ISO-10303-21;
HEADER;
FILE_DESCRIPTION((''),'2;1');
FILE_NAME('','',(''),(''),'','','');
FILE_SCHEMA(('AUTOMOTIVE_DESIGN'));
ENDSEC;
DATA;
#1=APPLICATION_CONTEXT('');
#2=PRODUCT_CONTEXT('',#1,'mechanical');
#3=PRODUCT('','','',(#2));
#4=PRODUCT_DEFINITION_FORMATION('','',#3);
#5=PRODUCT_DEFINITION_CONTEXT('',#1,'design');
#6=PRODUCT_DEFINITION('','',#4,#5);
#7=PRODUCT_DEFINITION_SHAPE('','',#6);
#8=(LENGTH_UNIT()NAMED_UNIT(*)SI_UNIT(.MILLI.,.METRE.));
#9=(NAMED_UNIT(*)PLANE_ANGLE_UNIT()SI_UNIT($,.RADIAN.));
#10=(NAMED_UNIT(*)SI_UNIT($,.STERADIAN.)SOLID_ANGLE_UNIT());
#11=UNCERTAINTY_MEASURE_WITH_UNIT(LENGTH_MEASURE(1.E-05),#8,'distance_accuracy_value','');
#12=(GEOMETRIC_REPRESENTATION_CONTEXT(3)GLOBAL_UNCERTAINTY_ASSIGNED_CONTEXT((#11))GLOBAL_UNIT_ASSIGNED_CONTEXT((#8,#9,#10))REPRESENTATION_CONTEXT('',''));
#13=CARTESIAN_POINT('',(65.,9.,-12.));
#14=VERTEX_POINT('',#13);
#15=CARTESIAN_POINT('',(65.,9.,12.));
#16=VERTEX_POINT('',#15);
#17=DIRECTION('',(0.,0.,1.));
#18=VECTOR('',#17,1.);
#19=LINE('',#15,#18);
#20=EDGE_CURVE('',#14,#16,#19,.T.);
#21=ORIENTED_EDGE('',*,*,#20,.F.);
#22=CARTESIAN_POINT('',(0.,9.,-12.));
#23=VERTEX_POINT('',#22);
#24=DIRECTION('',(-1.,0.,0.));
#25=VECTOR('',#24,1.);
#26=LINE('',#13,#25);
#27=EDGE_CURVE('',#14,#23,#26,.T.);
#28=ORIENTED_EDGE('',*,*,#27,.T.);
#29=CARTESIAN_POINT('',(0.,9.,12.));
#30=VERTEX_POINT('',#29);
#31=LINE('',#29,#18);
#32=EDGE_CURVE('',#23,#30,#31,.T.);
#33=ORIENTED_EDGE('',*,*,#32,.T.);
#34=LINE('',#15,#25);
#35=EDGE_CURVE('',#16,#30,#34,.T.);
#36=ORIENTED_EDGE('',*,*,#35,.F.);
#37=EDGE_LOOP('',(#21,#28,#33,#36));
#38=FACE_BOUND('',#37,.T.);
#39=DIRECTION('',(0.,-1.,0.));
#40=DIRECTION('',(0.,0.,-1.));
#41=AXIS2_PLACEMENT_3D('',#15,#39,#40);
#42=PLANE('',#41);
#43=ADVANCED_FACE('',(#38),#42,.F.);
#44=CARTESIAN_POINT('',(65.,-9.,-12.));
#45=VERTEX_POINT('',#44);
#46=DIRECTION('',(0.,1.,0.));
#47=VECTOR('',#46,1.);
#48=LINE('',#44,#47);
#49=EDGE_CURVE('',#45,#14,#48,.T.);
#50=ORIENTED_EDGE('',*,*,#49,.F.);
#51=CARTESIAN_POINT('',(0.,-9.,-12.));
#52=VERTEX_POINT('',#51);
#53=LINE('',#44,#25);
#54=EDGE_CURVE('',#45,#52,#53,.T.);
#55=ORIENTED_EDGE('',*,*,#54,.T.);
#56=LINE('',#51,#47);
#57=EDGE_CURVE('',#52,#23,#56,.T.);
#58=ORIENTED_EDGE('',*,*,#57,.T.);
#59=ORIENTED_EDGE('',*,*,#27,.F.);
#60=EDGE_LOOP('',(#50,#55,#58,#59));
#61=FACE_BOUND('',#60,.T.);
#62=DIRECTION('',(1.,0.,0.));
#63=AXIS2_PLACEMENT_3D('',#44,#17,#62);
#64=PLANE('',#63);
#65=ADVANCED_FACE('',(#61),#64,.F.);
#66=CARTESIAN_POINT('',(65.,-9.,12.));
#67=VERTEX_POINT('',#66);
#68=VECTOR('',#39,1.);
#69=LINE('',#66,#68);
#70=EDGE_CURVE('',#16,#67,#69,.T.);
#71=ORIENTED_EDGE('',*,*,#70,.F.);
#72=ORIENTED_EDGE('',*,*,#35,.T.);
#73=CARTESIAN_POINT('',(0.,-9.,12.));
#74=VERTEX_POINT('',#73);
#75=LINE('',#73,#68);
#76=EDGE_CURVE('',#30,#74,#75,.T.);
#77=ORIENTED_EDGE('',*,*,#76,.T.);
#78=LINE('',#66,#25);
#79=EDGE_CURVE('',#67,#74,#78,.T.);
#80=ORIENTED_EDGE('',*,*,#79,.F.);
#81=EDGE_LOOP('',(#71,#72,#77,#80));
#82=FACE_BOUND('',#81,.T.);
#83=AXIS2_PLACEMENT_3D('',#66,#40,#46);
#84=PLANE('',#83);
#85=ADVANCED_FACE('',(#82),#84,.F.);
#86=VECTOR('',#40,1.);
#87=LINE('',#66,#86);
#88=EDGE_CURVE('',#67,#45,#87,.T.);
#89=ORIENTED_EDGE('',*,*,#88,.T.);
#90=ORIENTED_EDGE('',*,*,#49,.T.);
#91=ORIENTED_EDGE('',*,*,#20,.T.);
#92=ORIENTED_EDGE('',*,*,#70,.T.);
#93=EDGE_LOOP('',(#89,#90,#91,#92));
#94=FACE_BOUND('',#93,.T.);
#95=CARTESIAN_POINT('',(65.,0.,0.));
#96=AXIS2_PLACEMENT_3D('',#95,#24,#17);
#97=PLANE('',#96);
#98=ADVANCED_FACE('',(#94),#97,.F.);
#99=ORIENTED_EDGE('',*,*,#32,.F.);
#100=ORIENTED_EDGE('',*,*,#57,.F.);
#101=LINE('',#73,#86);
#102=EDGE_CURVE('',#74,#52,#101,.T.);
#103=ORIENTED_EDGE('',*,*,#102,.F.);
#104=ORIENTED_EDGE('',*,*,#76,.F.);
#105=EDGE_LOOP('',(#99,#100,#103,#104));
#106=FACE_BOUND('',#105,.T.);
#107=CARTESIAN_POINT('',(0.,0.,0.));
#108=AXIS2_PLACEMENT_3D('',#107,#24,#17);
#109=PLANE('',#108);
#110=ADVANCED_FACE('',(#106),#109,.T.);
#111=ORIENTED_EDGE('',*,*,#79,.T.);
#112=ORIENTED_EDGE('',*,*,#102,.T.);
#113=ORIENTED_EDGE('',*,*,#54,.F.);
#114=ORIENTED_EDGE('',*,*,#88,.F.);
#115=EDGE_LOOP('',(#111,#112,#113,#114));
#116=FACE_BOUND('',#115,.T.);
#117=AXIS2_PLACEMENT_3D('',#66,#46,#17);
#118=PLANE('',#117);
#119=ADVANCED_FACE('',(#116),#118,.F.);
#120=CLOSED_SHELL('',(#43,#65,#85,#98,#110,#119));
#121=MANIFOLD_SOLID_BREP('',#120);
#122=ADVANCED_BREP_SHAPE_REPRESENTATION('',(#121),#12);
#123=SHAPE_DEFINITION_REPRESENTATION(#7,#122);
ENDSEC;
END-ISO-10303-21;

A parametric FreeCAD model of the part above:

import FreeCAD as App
import Part
import Sketcher

doc = App.newDocument("Part")
body = doc.addObject("PartDesign::Body", "Body")

# Sketch on YZ plane
sketch1 = doc.addObject("Sketcher::SketchObject", "Sketch")
body.addObject(sketch1)
sketch1.AttachmentSupport = (doc.YZ_Plane, [""])
sketch1.MapMode = "FlatFace"
sketch1.addGeometry(Part.LineSegment(App.Vector(9, 12, 0), App.Vector(-9, 12, 0)), False)
sketch1.addGeometry(Part.LineSegment(App.Vector(-9, 12, 0), App.Vector(-9, -12, 0)), False)
sketch1.addGeometry(Part.LineSegment(App.Vector(-9, -12, 0), App.Vector(9, -12, 0)), False)
sketch1.addGeometry(Part.LineSegment(App.Vector(9, -12, 0), App.Vector(9, 12, 0)), False)
sketch1.addConstraint(Sketcher.Constraint("Coincident", 0, 2, 1, 1))
sketch1.addConstraint(Sketcher.Constraint("Coincident", 1, 2, 2, 1))
sketch1.addConstraint(Sketcher.Constraint("Coincident", 2, 2, 3, 1))
sketch1.addConstraint(Sketcher.Constraint("Coincident", 3, 2, 0, 1))
sketch1.addConstraint(Sketcher.Constraint("Horizontal", 0))
sketch1.addConstraint(Sketcher.Constraint("Vertical", 1))
sketch1.addConstraint(Sketcher.Constraint("Horizontal", 2))
sketch1.addConstraint(Sketcher.Constraint("Vertical", 3))
sketch1.addConstraint(Sketcher.Constraint("Symmetric", 0, 2, 2, 2, -1, 1))
sketch1.addConstraint(Sketcher.Constraint("DistanceX", 0, 2, 0, 1, 18.0))
sketch1.addConstraint(Sketcher.Constraint("DistanceY", 1, 2, 1, 1, 24.0))
pad1 = doc.addObject("PartDesign::Pad", "Pad")
body.addObject(pad1)
pad1.Profile = sketch1
pad1.Length = 65

doc.recompute()
